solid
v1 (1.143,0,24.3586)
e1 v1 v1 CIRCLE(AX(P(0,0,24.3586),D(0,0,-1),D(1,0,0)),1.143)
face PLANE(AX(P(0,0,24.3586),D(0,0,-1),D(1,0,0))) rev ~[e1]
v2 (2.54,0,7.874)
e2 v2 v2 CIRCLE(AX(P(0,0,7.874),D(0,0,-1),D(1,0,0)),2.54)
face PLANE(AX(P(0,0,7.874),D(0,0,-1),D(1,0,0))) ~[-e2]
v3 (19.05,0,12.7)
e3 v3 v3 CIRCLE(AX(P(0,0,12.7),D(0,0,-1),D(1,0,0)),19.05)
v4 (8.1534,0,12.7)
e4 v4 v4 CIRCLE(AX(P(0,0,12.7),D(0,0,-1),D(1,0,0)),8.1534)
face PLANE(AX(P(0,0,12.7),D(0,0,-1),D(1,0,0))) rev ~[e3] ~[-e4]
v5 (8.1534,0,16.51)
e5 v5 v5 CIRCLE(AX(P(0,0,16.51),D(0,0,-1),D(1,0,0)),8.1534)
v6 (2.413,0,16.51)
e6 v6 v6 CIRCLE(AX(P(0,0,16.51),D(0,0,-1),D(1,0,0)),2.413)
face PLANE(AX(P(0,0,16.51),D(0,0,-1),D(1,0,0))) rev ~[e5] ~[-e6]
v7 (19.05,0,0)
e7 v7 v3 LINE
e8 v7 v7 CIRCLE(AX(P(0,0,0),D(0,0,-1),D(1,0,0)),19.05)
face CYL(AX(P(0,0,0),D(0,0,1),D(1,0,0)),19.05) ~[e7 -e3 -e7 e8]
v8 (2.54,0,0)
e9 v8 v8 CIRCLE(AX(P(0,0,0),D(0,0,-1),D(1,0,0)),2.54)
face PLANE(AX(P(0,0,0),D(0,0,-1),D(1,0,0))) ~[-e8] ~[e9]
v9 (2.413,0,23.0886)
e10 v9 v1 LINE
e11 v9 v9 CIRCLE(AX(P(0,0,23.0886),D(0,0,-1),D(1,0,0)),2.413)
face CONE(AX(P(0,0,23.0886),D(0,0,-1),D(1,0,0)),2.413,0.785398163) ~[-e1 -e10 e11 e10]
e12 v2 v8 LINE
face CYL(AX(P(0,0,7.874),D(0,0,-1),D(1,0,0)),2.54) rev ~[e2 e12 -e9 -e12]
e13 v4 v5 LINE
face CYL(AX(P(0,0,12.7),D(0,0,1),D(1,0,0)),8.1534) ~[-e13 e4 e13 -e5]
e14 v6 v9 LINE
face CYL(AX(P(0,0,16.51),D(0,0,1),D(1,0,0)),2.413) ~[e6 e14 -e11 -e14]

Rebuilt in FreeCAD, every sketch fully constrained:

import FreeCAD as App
import Part
import Sketcher
from FreeCAD import Vector
Q = App.Units.Quantity


def edges_at(feature, points):
    """Names of the edges that pass closest to the given points."""
    edges = feature.Shape.Edges
    near = lambda p: min(range(len(edges)), key=lambda i: edges[i].distToShape(Part.Vertex(*p))[0])
    return sorted({f"Edge{near(p) + 1}" for p in points})

doc = App.newDocument("Part")
body = doc.addObject("PartDesign::Body", "Body")

# Sketch on XZ plane
sketch1 = body.newObject("Sketcher::SketchObject", "Sketch")
sketch1.AttachmentSupport = (doc.getObject("XZ_Plane"), [""])
sketch1.MapMode = "FlatFace"
sketch1.addGeometry([
    Part.LineSegment(Vector(2.5, 0, 0), Vector(19.1, 0, 0)),  # 0
    Part.LineSegment(Vector(19.1, 0, 0), Vector(19.1, 12.7, 0)),  # 1
    Part.LineSegment(Vector(19.1, 12.7, 0), Vector(8.2, 12.7, 0)),  # 2
    Part.LineSegment(Vector(8.2, 12.7, 0), Vector(8.2, 16.5, 0)),  # 3
    Part.LineSegment(Vector(8.2, 16.5, 0), Vector(2.4, 16.5, 0)),  # 4
    Part.LineSegment(Vector(2.4, 16.5, 0), Vector(2.4, 24.4, 0)),  # 5
    Part.LineSegment(Vector(2.4, 24.4, 0), Vector(0, 24.4, 0)),  # 6
    Part.LineSegment(Vector(0, 24.4, 0), Vector(0, 7.9, 0)),  # 7
    Part.LineSegment(Vector(0, 7.9, 0), Vector(2.5, 7.9, 0)),  # 8
    Part.LineSegment(Vector(2.5, 7.9, 0), Vector(2.5, 0, 0)),  # 9
], False)
sketch1.addConstraint([
    Sketcher.Constraint("Coincident", 0, 2, 1, 1),
    Sketcher.Constraint("Coincident", 1, 2, 2, 1),
    Sketcher.Constraint("Coincident", 2, 2, 3, 1),
    Sketcher.Constraint("Coincident", 3, 2, 4, 1),
    Sketcher.Constraint("Coincident", 4, 2, 5, 1),
    Sketcher.Constraint("Coincident", 5, 2, 6, 1),
    Sketcher.Constraint("Coincident", 6, 2, 7, 1),
    Sketcher.Constraint("Coincident", 7, 2, 8, 1),
    Sketcher.Constraint("Coincident", 8, 2, 9, 1),
    Sketcher.Constraint("Coincident", 9, 2, 0, 1),
    Sketcher.Constraint("Horizontal", 0),
    Sketcher.Constraint("Vertical", 1),
    Sketcher.Constraint("Horizontal", 2),
    Sketcher.Constraint("Vertical", 3),
    Sketcher.Constraint("Horizontal", 4),
    Sketcher.Constraint("Vertical", 5),
    Sketcher.Constraint("Horizontal", 6),
    Sketcher.Constraint("Vertical", 7),
    Sketcher.Constraint("Horizontal", 8),
    Sketcher.Constraint("Vertical", 9),
    Sketcher.Constraint("PointOnObject", 0, 2, -1),
    Sketcher.Constraint("PointOnObject", 6, 2, -2),
    Sketcher.Constraint("DistanceX", 8, 1, 8, 2, Q("0.1 in")),
    Sketcher.Constraint("DistanceY", 1, 1, 1, 2, Q("0.5 in")),
    Sketcher.Constraint("DistanceX", 0, 1, 0, 2, Q("0.65 in")),
    Sketcher.Constraint("DistanceY", 3, 1, 3, 2, Q("0.15 in")),
    Sketcher.Constraint("DistanceY", 9, 2, 9, 1, Q("0.31 in")),
    Sketcher.Constraint("DistanceX", 2, 2, 2, 1, Q("0.429 in")),
    Sketcher.Constraint("DistanceX", 4, 2, 4, 1, Q("0.226 in")),
    Sketcher.Constraint("DistanceY", 5, 1, 5, 2, Q("0.309 in")),
])
revolution = body.newObject("PartDesign::Revolution", "Revolution")
revolution.Profile = sketch1
revolution.ReferenceAxis = (sketch1, ["V_Axis"])
revolution.Angle = 360
doc.recompute()

chamfer = body.newObject("PartDesign::Chamfer", "Chamfer")
chamfer.Base = (revolution, edges_at(revolution, [(-2.413, 0, 24.359)]))
chamfer.Size = Q("0.05 in")

doc.recompute()
